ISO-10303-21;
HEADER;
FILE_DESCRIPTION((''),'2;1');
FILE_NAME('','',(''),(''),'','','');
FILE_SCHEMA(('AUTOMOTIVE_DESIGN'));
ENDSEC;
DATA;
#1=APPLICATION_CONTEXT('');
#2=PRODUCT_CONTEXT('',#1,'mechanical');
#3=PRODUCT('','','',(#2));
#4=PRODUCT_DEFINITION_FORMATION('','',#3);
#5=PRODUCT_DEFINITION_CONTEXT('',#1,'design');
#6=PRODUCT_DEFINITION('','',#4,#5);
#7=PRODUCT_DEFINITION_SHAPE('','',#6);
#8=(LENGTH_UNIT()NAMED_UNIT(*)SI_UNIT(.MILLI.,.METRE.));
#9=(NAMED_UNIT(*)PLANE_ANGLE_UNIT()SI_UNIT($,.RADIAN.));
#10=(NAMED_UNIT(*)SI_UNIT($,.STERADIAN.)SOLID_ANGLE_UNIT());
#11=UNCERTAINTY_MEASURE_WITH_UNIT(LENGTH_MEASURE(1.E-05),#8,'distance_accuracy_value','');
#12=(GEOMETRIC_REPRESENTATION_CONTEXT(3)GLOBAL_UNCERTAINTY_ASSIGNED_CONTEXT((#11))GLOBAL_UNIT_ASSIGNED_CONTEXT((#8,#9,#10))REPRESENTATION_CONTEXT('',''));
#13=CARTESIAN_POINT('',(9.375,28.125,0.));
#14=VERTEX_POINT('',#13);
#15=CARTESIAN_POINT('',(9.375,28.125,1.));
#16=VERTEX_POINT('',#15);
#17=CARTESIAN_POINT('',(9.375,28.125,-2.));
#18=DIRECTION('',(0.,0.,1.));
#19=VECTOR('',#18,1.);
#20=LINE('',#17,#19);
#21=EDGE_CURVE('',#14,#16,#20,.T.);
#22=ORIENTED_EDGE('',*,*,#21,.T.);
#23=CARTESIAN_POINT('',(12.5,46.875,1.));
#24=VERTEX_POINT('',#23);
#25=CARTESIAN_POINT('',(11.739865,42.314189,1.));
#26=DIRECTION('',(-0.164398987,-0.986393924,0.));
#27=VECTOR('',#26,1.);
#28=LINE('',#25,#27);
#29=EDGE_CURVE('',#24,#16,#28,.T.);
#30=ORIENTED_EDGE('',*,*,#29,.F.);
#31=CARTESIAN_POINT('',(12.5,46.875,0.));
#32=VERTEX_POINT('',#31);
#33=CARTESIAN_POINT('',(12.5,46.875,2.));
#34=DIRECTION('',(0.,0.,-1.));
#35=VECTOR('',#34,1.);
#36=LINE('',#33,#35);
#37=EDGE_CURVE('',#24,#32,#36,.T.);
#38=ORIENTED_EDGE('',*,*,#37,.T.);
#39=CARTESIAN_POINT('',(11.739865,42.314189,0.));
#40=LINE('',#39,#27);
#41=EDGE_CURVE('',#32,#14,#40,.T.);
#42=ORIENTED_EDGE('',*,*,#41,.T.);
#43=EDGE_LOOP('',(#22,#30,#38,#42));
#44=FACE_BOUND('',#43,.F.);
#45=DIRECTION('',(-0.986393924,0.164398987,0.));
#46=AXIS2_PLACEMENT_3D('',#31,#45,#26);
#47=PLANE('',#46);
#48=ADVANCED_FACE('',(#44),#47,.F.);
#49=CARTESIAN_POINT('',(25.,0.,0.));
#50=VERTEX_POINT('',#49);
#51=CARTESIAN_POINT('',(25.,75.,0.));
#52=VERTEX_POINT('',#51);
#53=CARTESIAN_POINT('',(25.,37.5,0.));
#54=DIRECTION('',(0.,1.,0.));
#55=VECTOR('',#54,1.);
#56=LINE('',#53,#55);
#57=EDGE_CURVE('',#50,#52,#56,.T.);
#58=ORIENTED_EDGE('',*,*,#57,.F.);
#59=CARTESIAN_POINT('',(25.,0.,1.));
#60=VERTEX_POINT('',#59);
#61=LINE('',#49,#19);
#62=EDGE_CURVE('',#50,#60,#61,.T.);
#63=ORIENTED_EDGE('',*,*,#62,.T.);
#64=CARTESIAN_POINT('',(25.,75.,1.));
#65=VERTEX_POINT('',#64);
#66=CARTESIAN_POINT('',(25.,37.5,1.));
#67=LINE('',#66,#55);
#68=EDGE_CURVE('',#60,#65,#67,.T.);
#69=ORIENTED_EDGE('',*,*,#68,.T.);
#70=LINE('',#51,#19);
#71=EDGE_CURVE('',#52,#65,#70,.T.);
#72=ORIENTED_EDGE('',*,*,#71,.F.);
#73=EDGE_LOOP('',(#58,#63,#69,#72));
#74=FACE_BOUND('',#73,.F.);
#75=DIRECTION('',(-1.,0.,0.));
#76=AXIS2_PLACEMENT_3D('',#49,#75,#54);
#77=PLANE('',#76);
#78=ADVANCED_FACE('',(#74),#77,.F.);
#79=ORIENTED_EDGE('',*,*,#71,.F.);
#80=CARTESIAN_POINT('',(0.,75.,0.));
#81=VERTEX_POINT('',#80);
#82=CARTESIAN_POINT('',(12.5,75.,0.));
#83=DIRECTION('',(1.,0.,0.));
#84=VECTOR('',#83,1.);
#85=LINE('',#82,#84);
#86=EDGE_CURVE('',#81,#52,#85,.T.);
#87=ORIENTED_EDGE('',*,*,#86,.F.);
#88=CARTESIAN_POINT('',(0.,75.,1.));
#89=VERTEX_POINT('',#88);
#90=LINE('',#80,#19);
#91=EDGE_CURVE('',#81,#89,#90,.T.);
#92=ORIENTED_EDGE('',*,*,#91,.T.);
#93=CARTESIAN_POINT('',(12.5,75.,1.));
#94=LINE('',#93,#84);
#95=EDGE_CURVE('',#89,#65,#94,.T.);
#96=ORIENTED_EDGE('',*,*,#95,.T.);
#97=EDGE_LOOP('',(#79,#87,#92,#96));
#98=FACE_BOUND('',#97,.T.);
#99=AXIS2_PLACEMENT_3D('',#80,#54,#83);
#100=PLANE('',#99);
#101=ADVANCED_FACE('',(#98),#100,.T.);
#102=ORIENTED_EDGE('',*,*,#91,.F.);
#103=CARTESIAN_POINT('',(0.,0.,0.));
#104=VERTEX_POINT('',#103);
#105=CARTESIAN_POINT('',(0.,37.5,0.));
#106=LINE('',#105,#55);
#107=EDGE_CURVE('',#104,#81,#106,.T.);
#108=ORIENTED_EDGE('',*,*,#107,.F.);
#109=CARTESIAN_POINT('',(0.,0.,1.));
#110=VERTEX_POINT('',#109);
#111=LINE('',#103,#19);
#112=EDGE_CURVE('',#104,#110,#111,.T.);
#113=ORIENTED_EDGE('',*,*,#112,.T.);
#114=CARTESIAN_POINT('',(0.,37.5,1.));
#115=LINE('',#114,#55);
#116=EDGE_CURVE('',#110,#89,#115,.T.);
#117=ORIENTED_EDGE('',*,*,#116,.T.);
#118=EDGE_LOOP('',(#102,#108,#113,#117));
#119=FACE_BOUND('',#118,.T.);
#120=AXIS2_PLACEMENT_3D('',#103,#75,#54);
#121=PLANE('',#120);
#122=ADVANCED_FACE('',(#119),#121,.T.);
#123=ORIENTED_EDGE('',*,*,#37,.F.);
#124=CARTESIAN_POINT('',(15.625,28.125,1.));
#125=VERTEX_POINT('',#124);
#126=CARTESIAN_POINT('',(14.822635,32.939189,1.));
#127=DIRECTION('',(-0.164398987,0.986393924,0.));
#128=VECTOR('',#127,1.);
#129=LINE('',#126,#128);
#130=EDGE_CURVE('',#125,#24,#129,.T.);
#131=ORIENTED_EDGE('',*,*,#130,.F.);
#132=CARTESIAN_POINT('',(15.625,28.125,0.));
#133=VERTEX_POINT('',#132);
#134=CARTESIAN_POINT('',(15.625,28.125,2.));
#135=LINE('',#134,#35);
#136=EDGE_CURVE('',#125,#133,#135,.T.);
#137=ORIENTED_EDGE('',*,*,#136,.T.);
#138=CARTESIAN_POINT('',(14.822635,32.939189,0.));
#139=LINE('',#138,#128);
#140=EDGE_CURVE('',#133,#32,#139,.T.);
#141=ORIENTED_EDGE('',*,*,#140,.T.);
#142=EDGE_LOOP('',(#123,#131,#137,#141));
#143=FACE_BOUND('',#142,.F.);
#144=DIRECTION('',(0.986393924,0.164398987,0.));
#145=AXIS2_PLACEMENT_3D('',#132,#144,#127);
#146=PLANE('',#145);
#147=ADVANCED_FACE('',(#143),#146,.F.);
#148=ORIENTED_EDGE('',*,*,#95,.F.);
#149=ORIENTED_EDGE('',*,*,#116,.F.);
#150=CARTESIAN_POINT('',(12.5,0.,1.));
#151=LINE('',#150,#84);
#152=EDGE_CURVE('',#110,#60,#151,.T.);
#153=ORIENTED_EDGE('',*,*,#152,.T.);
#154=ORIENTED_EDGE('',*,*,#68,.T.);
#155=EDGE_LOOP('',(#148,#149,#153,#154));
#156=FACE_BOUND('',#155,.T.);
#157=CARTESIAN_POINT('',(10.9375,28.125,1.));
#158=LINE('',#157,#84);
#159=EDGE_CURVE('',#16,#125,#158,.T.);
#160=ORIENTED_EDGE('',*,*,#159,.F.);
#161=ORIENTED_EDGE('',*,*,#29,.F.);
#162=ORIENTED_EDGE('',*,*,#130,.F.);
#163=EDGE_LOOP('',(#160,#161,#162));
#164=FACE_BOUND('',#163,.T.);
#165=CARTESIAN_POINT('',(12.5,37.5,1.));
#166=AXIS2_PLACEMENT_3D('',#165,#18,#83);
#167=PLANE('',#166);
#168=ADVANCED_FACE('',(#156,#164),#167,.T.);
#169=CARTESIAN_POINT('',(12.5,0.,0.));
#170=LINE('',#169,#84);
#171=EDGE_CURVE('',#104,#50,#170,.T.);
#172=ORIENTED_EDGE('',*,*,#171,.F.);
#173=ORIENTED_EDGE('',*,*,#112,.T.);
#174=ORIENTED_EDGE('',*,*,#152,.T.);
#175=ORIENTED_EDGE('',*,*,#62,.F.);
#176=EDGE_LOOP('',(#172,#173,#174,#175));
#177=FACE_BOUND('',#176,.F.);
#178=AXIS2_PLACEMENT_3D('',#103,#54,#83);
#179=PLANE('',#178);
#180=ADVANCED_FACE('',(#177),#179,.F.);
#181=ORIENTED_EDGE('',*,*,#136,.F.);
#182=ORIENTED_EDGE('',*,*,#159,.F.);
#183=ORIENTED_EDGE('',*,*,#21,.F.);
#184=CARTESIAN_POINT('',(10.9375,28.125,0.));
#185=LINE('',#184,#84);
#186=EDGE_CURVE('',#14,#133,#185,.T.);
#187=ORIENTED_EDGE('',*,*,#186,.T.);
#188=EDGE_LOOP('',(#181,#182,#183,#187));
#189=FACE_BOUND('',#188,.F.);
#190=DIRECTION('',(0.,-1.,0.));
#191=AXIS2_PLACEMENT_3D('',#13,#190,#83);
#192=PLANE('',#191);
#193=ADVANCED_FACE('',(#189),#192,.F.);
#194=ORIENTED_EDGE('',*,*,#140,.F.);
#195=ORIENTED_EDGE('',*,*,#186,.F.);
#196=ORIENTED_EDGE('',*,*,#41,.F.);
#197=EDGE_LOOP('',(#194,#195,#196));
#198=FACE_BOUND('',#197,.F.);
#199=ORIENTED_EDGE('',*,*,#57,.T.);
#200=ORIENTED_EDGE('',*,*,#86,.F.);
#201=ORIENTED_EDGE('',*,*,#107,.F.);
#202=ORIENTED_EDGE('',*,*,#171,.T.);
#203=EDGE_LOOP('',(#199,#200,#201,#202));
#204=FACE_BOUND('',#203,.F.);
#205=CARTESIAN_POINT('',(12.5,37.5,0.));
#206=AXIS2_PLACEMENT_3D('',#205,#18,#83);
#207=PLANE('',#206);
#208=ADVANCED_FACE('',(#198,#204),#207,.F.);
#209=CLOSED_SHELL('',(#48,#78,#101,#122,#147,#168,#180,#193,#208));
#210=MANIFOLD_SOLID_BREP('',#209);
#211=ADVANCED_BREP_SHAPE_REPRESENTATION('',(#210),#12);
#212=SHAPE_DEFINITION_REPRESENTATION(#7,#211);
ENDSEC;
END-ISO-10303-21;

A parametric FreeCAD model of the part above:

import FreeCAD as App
import Part
import Sketcher


def add_polygon(sketch, points):
    """Adds a closed chain of lines whose ends are joined by coincident constraints."""
    first, n = sketch.GeometryCount, len(points)
    for a, b in zip(points, points[1:] + points[:1]):
        sketch.addGeometry(Part.LineSegment(App.Vector(*a, 0), App.Vector(*b, 0)), False)
    for i in range(n):
        sketch.addConstraint(Sketcher.Constraint("Coincident", first + i, 2, first + (i + 1) % n, 1))

doc = App.newDocument("Part")
body = doc.addObject("PartDesign::Body", "Body")

# Sketch on XY plane
sketch1 = body.newObject("Sketcher::SketchObject", "Sketch")
sketch1.AttachmentSupport = (doc.getObject("XY_Plane"), [""])
sketch1.MapMode = "FlatFace"
add_polygon(sketch1, [(12, 47), (9, 28), (16, 28)])  # lines 0-2
sketch1.addConstraint([
    Sketcher.Constraint("Horizontal", 1),
    Sketcher.Constraint("Equal", 0, 2),
    Sketcher.Constraint("DistanceX", 1, 1, 1, 2, 6.25),
    Sketcher.Constraint("DistanceX", -1, 1, 2, 2, 12.5),
    Sketcher.Constraint("DistanceY", 0, 2, 2, 2, 18.75),
    Sketcher.Constraint("DistanceY", -1, 1, 0, 2, 28.125),
])
pad1 = body.newObject("PartDesign::Pad", "Pad")
pad1.Profile = sketch1
pad1.Type = "TwoLengths"
pad1.Length = 2
pad1.Length2 = 2
body2 = doc.addObject("PartDesign::Body", "Body001")

# Sketch on XY plane
sketch2 = body2.newObject("Sketcher::SketchObject", "Sketch001")
sketch2.AttachmentSupport = (doc.getObject("XY_Plane001"), [""])
sketch2.MapMode = "FlatFace"
add_polygon(sketch2, [(0, 75), (0, 0), (25, 0), (25, 75)])  # lines 0-3
sketch2.addConstraint([
    Sketcher.Constraint("Vertical", 0),
    Sketcher.Constraint("Horizontal", 1),
    Sketcher.Constraint("Vertical", 2),
    Sketcher.Constraint("Horizontal", 3),
    Sketcher.Constraint("Coincident", 0, 2, -1, 1),
    Sketcher.Constraint("DistanceX", 1, 1, 1, 2, 25.0),
    Sketcher.Constraint("DistanceY", 0, 2, 0, 1, 75.0),
])
pad2 = body2.newObject("PartDesign::Pad", "Pad001")
pad2.Profile = sketch2
pad2.Length = 1
doc.recompute()

boolean = body2.newObject("PartDesign::Boolean", "Boolean")
boolean.Type = "Cut"
boolean.addObjects([body])

doc.recompute()
